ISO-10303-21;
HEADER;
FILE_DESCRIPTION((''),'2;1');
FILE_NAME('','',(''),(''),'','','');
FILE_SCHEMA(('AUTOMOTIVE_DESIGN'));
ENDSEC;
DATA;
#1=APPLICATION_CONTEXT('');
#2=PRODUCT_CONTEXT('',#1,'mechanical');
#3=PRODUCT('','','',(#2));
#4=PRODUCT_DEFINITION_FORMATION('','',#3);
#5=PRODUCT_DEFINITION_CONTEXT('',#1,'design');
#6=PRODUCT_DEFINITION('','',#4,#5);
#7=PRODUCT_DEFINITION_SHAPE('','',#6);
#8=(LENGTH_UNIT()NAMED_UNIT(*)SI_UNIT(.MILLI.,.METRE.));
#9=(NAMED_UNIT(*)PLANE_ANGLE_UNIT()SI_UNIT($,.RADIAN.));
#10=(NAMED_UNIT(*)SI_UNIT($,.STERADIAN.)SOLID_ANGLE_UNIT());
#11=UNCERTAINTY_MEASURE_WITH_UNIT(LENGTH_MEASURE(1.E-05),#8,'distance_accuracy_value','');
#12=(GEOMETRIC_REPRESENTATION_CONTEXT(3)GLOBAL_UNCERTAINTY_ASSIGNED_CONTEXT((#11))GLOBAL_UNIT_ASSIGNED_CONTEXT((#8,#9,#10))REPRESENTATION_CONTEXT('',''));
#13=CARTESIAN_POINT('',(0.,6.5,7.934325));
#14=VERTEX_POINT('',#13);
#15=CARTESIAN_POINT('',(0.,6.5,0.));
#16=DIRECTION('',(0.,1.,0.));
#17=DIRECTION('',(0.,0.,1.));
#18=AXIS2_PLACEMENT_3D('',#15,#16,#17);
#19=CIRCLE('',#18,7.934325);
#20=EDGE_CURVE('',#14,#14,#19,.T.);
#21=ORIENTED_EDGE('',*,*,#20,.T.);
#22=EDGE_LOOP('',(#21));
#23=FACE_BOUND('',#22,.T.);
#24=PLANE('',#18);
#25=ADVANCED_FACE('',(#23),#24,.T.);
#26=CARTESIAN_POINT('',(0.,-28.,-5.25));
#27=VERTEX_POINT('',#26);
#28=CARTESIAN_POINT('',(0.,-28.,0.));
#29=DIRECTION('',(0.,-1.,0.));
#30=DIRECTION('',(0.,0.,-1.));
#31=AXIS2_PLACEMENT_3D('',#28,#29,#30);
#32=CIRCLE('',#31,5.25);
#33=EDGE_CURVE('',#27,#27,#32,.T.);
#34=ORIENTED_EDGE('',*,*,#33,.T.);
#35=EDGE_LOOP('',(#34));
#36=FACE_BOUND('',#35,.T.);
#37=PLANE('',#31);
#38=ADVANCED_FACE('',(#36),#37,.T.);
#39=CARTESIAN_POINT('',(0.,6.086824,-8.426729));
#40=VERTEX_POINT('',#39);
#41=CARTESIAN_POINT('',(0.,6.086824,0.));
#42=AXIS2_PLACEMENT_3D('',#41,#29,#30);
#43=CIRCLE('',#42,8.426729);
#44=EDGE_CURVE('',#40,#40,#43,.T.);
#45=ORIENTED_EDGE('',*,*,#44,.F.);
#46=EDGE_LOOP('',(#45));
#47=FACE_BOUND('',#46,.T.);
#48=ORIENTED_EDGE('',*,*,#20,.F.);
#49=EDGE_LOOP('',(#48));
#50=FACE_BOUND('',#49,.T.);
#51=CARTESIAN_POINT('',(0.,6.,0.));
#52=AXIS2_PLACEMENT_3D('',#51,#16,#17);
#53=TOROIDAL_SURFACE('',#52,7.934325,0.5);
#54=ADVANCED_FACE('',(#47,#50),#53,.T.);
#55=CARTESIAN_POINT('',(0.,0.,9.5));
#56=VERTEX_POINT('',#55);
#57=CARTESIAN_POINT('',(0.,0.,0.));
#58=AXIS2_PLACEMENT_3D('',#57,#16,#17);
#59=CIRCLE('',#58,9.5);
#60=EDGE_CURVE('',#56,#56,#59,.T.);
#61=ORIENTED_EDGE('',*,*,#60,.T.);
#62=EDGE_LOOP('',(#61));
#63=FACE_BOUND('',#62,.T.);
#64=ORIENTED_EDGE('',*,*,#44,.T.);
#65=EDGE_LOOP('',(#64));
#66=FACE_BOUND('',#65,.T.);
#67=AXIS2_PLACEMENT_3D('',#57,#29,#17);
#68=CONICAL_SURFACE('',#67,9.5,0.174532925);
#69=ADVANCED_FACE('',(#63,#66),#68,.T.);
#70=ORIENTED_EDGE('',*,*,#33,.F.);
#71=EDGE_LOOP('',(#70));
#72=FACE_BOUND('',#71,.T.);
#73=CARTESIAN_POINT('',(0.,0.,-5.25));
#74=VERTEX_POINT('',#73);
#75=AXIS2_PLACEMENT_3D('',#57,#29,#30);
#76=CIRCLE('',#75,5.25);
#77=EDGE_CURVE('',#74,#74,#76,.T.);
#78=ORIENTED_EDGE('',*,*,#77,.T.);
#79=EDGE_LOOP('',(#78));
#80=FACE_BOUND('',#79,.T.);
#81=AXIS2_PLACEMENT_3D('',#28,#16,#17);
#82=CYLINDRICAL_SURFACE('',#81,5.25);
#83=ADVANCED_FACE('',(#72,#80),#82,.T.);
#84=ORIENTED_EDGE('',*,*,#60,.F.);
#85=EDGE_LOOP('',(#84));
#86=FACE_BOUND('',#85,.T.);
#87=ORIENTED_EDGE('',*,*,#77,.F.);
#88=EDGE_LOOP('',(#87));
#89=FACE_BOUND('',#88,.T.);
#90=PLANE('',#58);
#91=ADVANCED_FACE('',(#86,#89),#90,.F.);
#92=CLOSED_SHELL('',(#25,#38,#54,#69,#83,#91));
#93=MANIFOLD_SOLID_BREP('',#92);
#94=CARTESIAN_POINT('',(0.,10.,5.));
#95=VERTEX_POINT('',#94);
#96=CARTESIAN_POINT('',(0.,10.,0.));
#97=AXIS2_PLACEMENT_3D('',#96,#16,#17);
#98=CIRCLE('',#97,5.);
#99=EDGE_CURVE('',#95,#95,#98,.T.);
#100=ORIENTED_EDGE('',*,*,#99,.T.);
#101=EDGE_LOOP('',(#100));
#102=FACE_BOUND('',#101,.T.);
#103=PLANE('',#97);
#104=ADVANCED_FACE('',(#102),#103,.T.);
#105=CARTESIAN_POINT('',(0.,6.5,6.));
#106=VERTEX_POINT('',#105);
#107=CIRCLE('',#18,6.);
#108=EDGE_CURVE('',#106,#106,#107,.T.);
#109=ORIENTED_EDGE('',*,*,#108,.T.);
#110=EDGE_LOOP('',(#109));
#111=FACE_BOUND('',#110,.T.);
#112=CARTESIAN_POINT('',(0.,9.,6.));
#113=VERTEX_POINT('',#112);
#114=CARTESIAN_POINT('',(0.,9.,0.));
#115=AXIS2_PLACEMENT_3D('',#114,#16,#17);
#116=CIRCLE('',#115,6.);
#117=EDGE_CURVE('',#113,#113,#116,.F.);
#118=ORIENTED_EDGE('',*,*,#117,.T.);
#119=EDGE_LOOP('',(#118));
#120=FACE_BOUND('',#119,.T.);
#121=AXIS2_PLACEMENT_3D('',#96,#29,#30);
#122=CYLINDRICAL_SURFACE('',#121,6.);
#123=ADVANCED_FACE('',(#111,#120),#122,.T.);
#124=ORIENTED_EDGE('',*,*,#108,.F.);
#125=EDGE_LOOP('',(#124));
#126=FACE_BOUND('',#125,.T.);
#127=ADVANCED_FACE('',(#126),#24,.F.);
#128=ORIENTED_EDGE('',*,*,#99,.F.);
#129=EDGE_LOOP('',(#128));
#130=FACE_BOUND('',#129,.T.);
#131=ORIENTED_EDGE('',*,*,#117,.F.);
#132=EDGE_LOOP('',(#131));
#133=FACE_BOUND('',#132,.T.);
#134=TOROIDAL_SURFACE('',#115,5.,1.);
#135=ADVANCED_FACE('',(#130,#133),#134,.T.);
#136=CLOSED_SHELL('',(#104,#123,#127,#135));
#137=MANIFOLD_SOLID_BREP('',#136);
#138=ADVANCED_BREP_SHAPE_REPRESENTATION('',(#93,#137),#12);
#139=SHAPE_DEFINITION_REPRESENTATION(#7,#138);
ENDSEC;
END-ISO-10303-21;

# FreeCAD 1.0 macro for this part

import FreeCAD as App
import Part
import Sketcher

V = App.Vector
Q = App.Units.Quantity


def edges_at(feature, points):
    """Names of the edges that pass closest to the given points."""
    edges = feature.Shape.Edges
    near = lambda p: min(range(len(edges)), key=lambda i: edges[i].distToShape(Part.Vertex(*p))[0])
    return sorted({f"Edge{near(p) + 1}" for p in points})

doc = App.newDocument("Part")
params = doc.addObject("Spreadsheet::Sheet", "Params")
for row, (alias, value) in enumerate([
    ("sketch1_diameter", "19 mm"),
    ("pad1_length", "6.5 mm"),
    ("pad1_taper", "-10 deg"),
    ("sketch2_diameter", "10.5 mm"),
    ("pad2_length", "28 mm"),
    ("fillet_radius", "0.5 mm"),
    ("sketch3_diameter", "12 mm"),
    ("pad3_length", "3.5 mm"),
    ("fillet2_radius", "1 mm"),
], start=1):
    params.set(f"A{row}", alias)
    params.set(f"B{row}", "=" + value)
    params.setAlias(f"B{row}", alias)

body = doc.addObject("PartDesign::Body", "Body")

sketch1 = body.newObject("Sketcher::SketchObject", "Sketch")
sketch1.AttachmentSupport = (doc.getObject("XZ_Plane"), [""])
sketch1.MapMode = "FlatFace"
sketch1.addGeometry(Part.Circle(V(0, 0, 0), V(0, 0, 1), 10), False)
sketch1.addConstraint([
    Sketcher.Constraint("Coincident", 0, 3, -1, 1),
    Sketcher.Constraint("Diameter", 0, Q("19 mm")),
])
sketch1.setExpression("Constraints[1]", "Params.sketch1_diameter")
pad1 = body.newObject("PartDesign::Pad", "Pad")
pad1.Profile = sketch1
pad1.setExpression("Length", "Params.pad1_length")
pad1.Reversed = True
pad1.setExpression("TaperAngle", "Params.pad1_taper")

sketch2 = body.newObject("Sketcher::SketchObject", "Sketch001")
sketch2.AttachmentSupport = (doc.getObject("XZ_Plane"), [""])
sketch2.MapMode = "FlatFace"
sketch2.addGeometry(Part.Circle(V(0, 0, 0), V(0, 0, 1), 5), False)
sketch2.addConstraint([
    Sketcher.Constraint("Coincident", 0, 3, -1, 1),
    Sketcher.Constraint("Diameter", 0, Q("10.5 mm")),
])
sketch2.setExpression("Constraints[1]", "Params.sketch2_diameter")
pad2 = body.newObject("PartDesign::Pad", "Pad001")
pad2.Profile = sketch2
pad2.setExpression("Length", "Params.pad2_length")
doc.recompute()

fillet = body.newObject("PartDesign::Fillet", "Fillet")
fillet.Base = (pad2, edges_at(pad2, [(-8.354, 6.5, 0)]))
fillet.setExpression("Radius", "Params.fillet_radius")
body2 = doc.addObject("PartDesign::Body", "Body001")

sketch3 = body2.newObject("Sketcher::SketchObject", "Sketch002")
sketch3.AttachmentSupport = (doc.getObject("XZ_Plane001"), [""])
sketch3.MapMode = "FlatFace"
sketch3.AttachmentOffset = App.Placement(V(0, 0, -6.5), App.Rotation())
sketch3.addGeometry(Part.Circle(V(0, 0, 0), V(0, 0, 1), 6), False)
sketch3.addConstraint([
    Sketcher.Constraint("Coincident", 0, 3, -1, 1),
    Sketcher.Constraint("Diameter", 0, Q("12 mm")),
])
sketch3.setExpression("Constraints[1]", "Params.sketch3_diameter")
pad3 = body2.newObject("PartDesign::Pad", "Pad002")
pad3.Profile = sketch3
pad3.setExpression("Length", "Params.pad3_length")
pad3.Reversed = True
doc.recompute()

fillet2 = body2.newObject("PartDesign::Fillet", "Fillet001")
fillet2.Base = (pad3, edges_at(pad3, [(0, 10, -6)]))
fillet2.setExpression("Radius", "Params.fillet2_radius")

doc.recompute()
